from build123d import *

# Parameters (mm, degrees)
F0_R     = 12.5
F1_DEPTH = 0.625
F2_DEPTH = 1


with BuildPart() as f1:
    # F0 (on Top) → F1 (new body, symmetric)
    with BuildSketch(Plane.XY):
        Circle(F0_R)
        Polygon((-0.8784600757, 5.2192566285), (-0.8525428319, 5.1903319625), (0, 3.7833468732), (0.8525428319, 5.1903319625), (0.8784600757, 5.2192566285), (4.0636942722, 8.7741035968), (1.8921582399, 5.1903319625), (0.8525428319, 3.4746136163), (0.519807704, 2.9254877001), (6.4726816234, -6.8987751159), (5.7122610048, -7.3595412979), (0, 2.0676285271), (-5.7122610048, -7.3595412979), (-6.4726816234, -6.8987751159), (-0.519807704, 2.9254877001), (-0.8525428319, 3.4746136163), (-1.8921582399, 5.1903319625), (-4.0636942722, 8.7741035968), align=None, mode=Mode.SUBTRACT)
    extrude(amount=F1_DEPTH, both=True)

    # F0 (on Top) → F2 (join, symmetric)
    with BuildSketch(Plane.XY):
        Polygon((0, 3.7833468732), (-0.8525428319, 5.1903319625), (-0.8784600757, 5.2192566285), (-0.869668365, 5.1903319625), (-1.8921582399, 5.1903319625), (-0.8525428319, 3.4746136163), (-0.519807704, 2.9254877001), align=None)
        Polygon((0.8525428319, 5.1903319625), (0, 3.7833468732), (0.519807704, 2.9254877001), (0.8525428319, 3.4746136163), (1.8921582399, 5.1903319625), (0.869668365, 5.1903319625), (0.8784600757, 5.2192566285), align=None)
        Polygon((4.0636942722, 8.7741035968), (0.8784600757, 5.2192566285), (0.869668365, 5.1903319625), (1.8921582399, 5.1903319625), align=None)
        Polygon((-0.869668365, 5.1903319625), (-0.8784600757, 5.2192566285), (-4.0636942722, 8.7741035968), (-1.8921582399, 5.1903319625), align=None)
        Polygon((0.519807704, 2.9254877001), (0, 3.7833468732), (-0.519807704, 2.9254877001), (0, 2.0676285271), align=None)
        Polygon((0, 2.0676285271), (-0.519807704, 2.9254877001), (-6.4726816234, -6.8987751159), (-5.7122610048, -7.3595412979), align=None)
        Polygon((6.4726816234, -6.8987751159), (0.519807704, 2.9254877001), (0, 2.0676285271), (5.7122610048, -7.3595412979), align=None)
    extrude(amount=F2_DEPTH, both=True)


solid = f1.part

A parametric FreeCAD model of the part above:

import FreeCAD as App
import Part
import Sketcher

V = App.Vector
Q = App.Units.Quantity


def add_polygon(sketch, points):
    """Adds a closed chain of lines whose ends are joined by coincident constraints."""
    first, n = sketch.GeometryCount, len(points)
    for a, b in zip(points, points[1:] + points[:1]):
        sketch.addGeometry(Part.LineSegment(App.Vector(*a, 0), App.Vector(*b, 0)), False)
    for i in range(n):
        sketch.addConstraint(Sketcher.Constraint("Coincident", first + i, 2, first + (i + 1) % n, 1))

doc = App.newDocument("Part")
params = doc.addObject("Spreadsheet::Sheet", "Params")
for row, (alias, value) in enumerate([
    ("sketch1_diameter", "25 mm"),
    ("pad1_length", "1.25 mm"),
    ("pad2_length", "2 mm"),
], start=1):
    params.set(f"A{row}", alias)
    params.set(f"B{row}", "=" + value)
    params.setAlias(f"B{row}", alias)

body = doc.addObject("PartDesign::Body", "Body")

sketch1 = doc.addObject("Sketcher::SketchObject", "Sketch")
body.addObject(sketch1)
sketch1.AttachmentSupport = (doc.XY_Plane, [""])
sketch1.MapMode = "FlatFace"
sketch1.addGeometry(Part.Circle(V(0, 0, 0), V(0, 0, 1), 12.5), False)
add_polygon(sketch1, [(-4.064, 8.774), (-0.878, 5.219), (-0.853, 5.19), (0, 3.783), (0.853, 5.19), (0.878, 5.219), (4.064, 8.774), (1.892, 5.19), (0.853, 3.475), (0.52, 2.925), (6.473, -6.899), (5.712, -7.36), (0, 2.068), (-5.712, -7.36), (-6.473, -6.899), (-0.52, 2.925), (-0.853, 3.475), (-1.892, 5.19)])
sketch1.addConstraint([
    Sketcher.Constraint("Coincident", 0, 3, -1, 1),
    Sketcher.Constraint("Symmetric", 2, 2, 4, 2, -2),
    Sketcher.Constraint("Symmetric", 1, 2, 5, 2, -2),
    Sketcher.Constraint("Symmetric", 11, 2, 13, 2, -2),
    Sketcher.Constraint("Symmetric", 10, 2, 14, 2, -2),
    Sketcher.Constraint("Symmetric", 9, 2, 15, 2, -2),
    Sketcher.Constraint("Symmetric", 8, 2, 16, 2, -2),
    Sketcher.Constraint("Symmetric", 7, 2, 17, 2, -2),
    Sketcher.Constraint("Symmetric", 6, 2, 18, 2, -2),
    Sketcher.Constraint("PointOnObject", 3, 2, -2),
    Sketcher.Constraint("PointOnObject", 12, 2, -2),
    Sketcher.Constraint("Parallel", 1, 2),
    Sketcher.Constraint("Parallel", 4, 7),
    Sketcher.Constraint("Parallel", 7, 8),
    Sketcher.Constraint("Parallel", 8, 9),
    Sketcher.Constraint("Parallel", 3, 10),
    Sketcher.Constraint("Perpendicular", 10, 11),
    Sketcher.Constraint("Perpendicular", 11, 12),
    Sketcher.Constraint("Horizontal", 4, 2, 7, 2),
    Sketcher.Constraint("Vertical", 4, 2, 8, 2),
    Sketcher.Constraint("Diameter", 0, Q("25 mm")),
    Sketcher.Constraint("DistanceX", 5, 2, 7, 2, Q("1.013698 mm")),
    Sketcher.Constraint("DistanceX", 2, 2, 7, 2, Q("2.744701 mm")),
    Sketcher.Constraint("Distance", 9, Q("0.642068 mm")),
    Sketcher.Constraint("Distance", 12, Q("11.02277 mm")),
    Sketcher.Constraint("DistanceX", 1, 2, -1, 1, Q("0.87846 mm")),
    Sketcher.Constraint("DistanceY", -1, 1, 2, 2, Q("5.190332 mm")),
    Sketcher.Constraint("DistanceX", -1, 1, 10, 2, Q("6.472682 mm")),
    Sketcher.Constraint("DistanceX", -1, 1, 11, 2, Q("5.712261 mm")),
    Sketcher.Constraint("DistanceX", 4, 2, 6, 2, Q("3.211151 mm")),
])
sketch1.setExpression("Constraints[38]", "Params.sketch1_diameter")
pad1 = doc.addObject("PartDesign::Pad", "Pad")
body.addObject(pad1)
pad1.Profile = sketch1
pad1.setExpression("Length", "Params.pad1_length")
pad1.Midplane = True

sketch2 = doc.addObject("Sketcher::SketchObject", "Sketch001")
body.addObject(sketch2)
sketch2.AttachmentSupport = (doc.XY_Plane, [""])
sketch2.MapMode = "FlatFace"
add_polygon(sketch2, [(0, 3.783), (-0.853, 5.19), (-0.878, 5.219), (-4.064, 8.774), (-1.892, 5.19), (-0.853, 3.475), (-0.52, 2.925), (-6.473, -6.899), (-5.712, -7.36), (0, 2.068), (5.712, -7.36), (6.473, -6.899), (0.52, 2.925), (0.853, 3.475), (1.892, 5.19), (4.064, 8.774), (0.878, 5.219), (0.853, 5.19)])
sketch2.addConstraint([
    Sketcher.Constraint("Symmetric", 7, 2, 9, 2, -2),
    Sketcher.Constraint("Symmetric", 6, 2, 10, 2, -2),
    Sketcher.Constraint("Symmetric", 5, 2, 11, 2, -2),
    Sketcher.Constraint("Symmetric", 4, 2, 12, 2, -2),
    Sketcher.Constraint("Symmetric", 3, 2, 13, 2, -2),
    Sketcher.Constraint("Symmetric", 2, 2, 14, 2, -2),
    Sketcher.Constraint("Symmetric", 1, 2, 15, 2, -2),
    Sketcher.Constraint("Symmetric", 0, 2, 16, 2, -2),
    Sketcher.Constraint("PointOnObject", 8, 2, -2),
    Sketcher.Constraint("PointOnObject", 17, 2, -2),
    Sketcher.Constraint("Parallel", 1, 2),
    Sketcher.Constraint("Parallel", 0, 3),
    Sketcher.Constraint("Parallel", 3, 4),
    Sketcher.Constraint("Parallel", 4, 5),
    Sketcher.Constraint("Perpendicular", 6, 7),
    Sketcher.Constraint("Perpendicular", 7, 8),
    Sketcher.Constraint("Parallel", 5, 9),
    Sketcher.Constraint("Horizontal", 0, 2, 3, 2),
    Sketcher.Constraint("Vertical", 0, 2, 4, 2),
    Sketcher.Constraint("DistanceX", 3, 2, 1, 2, Q("1.013698 mm")),
    Sketcher.Constraint("DistanceX", 0, 2, 13, 2, Q("2.744701 mm")),
    Sketcher.Constraint("Distance", 5, Q("0.642068 mm")),
    Sketcher.Constraint("Distance", 8, Q("11.02277 mm")),
    Sketcher.Constraint("DistanceY", -1, 1, 0, 2, Q("5.190332 mm")),
    Sketcher.Constraint("DistanceX", 1, 2, -1, 1, Q("0.87846 mm")),
    Sketcher.Constraint("DistanceX", 6, 2, -1, 1, Q("6.472682 mm")),
    Sketcher.Constraint("DistanceX", 7, 2, -1, 1, Q("5.712261 mm")),
    Sketcher.Constraint("DistanceX", 2, 2, 0, 2, Q("3.211151 mm")),
])
pad2 = doc.addObject("PartDesign::Pad", "Pad001")
body.addObject(pad2)
pad2.Profile = sketch2
pad2.setExpression("Length", "Params.pad2_length")
pad2.Midplane = True

doc.recompute()
